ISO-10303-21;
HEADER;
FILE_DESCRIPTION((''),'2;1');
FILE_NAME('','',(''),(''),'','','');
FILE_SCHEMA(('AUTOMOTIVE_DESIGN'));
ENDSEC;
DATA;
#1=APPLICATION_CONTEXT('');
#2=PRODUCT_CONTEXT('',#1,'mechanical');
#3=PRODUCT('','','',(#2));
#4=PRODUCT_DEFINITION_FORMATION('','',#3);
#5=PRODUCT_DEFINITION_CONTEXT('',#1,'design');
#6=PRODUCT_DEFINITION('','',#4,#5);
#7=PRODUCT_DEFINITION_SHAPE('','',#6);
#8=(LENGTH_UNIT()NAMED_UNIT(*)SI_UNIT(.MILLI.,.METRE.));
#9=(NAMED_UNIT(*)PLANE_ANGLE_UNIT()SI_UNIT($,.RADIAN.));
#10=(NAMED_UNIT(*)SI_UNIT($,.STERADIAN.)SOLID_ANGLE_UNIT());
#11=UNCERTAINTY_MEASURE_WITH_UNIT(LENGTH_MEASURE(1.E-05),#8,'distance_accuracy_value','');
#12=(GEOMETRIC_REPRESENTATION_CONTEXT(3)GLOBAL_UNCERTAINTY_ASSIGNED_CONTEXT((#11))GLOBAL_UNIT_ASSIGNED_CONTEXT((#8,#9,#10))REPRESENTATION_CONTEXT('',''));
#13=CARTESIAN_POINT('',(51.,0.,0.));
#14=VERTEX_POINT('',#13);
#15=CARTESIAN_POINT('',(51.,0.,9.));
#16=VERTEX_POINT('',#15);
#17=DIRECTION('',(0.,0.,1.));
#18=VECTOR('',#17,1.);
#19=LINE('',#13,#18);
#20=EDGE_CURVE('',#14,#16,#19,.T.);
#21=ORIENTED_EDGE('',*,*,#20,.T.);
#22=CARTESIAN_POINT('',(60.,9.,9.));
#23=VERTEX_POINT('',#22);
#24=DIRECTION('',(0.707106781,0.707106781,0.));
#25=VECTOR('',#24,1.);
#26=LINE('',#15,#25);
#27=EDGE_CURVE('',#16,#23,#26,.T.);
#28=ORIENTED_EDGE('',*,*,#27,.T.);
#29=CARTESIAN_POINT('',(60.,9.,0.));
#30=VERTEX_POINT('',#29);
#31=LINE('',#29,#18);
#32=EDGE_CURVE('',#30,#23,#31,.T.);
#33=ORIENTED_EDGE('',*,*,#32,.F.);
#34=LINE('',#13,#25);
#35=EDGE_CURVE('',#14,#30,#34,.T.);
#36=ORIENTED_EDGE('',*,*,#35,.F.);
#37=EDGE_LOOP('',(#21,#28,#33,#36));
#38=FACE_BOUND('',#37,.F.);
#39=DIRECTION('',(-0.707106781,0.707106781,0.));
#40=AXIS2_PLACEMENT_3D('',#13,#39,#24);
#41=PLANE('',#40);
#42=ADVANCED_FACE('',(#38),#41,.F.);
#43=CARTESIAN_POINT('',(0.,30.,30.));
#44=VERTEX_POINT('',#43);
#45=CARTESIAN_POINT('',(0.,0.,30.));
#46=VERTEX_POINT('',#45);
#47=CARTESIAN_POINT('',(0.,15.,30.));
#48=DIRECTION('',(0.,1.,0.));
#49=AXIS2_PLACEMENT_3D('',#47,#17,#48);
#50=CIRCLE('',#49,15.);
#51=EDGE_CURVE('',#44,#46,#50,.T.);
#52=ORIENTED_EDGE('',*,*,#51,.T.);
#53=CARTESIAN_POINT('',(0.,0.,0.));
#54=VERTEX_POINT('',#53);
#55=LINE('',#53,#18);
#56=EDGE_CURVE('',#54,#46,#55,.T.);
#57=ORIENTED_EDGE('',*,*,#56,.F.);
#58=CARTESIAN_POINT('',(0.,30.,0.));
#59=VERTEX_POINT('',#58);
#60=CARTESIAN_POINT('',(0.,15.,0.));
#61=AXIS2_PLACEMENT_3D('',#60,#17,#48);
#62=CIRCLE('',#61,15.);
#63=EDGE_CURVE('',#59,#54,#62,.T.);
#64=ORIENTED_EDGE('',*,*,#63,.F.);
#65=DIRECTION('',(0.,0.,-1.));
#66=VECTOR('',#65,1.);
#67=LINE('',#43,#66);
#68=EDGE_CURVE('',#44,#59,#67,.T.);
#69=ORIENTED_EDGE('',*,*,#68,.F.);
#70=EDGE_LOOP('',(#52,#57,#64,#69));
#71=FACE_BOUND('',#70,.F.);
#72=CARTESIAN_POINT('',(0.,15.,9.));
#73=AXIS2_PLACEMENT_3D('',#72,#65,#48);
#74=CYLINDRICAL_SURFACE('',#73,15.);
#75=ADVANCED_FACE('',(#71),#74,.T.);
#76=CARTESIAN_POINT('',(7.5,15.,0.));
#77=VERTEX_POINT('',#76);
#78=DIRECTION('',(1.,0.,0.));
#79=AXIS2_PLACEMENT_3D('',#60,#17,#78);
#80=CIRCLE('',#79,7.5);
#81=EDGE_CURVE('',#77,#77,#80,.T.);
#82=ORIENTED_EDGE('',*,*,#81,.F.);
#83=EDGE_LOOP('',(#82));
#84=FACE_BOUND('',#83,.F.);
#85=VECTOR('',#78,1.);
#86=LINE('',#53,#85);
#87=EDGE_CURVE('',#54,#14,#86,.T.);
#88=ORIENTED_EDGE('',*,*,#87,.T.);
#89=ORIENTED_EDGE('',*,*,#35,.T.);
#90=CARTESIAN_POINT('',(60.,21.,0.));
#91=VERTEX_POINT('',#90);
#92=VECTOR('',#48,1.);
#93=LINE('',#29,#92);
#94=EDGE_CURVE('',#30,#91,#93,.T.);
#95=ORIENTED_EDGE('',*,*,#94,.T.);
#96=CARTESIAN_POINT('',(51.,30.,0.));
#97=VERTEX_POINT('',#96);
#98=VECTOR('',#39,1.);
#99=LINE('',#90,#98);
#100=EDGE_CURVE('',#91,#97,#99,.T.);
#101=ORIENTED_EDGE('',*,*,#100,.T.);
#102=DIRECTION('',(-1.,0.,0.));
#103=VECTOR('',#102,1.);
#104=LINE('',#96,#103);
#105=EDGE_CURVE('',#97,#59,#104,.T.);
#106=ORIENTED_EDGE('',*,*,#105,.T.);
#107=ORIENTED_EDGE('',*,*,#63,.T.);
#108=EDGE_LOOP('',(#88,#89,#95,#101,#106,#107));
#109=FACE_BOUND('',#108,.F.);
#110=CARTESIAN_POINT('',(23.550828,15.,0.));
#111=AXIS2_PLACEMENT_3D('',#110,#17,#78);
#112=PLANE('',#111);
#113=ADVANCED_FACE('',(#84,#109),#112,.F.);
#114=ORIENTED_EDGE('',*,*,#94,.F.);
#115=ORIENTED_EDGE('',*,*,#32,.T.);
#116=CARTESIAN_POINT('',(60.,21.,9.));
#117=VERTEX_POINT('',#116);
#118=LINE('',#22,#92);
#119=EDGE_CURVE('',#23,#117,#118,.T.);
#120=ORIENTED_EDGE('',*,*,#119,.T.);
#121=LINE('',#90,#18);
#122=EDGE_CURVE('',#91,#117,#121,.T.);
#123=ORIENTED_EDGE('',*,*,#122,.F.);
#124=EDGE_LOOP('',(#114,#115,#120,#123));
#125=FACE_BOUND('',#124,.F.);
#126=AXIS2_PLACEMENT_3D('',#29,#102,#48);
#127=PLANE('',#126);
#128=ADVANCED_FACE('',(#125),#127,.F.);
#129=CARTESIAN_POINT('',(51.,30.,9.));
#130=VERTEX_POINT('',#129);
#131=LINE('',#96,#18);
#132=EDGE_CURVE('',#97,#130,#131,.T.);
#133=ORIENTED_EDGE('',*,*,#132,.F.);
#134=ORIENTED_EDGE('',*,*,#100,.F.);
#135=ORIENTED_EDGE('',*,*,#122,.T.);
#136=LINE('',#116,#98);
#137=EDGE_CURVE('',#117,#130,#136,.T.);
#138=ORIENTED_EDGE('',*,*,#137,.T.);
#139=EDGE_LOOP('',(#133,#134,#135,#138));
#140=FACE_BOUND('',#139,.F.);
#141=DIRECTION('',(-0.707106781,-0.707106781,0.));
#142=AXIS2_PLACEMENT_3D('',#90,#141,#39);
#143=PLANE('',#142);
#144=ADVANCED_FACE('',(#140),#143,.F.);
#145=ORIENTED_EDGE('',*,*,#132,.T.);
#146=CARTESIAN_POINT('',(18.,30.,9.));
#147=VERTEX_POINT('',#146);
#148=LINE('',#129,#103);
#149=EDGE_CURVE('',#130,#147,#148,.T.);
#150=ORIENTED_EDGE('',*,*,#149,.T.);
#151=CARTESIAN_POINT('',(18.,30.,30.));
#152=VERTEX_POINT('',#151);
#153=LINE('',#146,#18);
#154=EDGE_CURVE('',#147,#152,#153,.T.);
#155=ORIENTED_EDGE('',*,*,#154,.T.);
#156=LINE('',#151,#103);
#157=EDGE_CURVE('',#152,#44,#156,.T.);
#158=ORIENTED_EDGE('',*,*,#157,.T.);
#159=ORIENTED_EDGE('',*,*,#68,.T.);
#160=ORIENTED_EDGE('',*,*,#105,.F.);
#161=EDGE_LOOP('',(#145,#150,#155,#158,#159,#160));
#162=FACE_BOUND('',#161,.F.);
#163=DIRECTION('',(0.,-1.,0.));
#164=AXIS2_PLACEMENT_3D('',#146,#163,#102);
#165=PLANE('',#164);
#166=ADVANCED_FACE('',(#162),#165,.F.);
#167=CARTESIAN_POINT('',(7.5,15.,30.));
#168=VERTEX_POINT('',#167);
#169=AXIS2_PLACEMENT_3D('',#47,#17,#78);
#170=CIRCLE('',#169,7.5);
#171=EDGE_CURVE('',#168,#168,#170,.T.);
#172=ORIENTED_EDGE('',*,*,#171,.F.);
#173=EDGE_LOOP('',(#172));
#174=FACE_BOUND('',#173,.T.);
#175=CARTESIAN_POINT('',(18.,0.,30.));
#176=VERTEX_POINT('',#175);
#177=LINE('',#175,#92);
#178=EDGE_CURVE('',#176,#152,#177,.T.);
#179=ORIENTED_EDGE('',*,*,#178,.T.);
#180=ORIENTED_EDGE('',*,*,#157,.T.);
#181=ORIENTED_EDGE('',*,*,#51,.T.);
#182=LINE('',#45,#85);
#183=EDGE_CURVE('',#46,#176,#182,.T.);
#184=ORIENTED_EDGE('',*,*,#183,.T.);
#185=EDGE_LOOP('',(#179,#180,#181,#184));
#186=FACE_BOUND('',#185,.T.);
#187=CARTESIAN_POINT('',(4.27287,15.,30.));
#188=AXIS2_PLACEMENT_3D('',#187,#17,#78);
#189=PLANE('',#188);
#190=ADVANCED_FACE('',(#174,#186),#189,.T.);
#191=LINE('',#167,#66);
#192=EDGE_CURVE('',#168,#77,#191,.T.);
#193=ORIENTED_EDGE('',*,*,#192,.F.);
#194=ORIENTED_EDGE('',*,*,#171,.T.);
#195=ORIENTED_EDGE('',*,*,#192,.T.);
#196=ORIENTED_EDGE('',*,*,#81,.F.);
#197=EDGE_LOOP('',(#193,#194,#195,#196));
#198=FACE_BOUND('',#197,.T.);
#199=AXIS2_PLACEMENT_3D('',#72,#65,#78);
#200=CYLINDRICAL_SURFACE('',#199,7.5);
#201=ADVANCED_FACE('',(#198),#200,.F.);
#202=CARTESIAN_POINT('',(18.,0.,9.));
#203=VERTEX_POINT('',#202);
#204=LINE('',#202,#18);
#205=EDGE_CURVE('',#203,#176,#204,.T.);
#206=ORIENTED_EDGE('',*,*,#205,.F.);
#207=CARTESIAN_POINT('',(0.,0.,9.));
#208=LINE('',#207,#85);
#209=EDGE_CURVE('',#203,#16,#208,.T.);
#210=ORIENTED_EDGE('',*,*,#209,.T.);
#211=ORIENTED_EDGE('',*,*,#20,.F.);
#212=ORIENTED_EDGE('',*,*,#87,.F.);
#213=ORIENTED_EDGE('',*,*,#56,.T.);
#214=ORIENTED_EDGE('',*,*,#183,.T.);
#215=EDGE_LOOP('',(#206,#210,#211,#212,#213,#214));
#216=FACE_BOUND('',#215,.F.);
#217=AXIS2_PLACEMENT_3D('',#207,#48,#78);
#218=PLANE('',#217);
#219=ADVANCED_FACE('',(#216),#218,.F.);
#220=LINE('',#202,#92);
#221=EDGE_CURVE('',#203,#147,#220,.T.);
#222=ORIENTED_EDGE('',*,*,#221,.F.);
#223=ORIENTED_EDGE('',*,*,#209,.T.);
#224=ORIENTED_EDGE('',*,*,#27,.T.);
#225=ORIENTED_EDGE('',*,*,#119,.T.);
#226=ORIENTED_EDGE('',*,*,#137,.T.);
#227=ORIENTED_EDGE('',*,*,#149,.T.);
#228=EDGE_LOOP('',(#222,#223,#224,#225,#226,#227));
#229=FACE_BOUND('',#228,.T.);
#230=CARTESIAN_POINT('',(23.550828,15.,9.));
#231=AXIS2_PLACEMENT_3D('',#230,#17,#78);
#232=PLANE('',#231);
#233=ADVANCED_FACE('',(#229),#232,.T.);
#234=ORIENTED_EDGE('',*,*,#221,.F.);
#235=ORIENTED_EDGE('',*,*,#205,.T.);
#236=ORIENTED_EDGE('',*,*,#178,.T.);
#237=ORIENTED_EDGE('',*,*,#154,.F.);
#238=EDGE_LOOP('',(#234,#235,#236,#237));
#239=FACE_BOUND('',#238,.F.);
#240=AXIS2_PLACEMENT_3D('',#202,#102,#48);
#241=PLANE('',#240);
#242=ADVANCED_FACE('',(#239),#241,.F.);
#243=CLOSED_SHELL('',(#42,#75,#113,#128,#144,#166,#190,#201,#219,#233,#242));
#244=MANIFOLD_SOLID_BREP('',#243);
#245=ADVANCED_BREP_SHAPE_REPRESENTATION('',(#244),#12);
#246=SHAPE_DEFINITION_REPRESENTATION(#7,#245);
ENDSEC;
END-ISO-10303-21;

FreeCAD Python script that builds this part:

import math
import FreeCAD as App
import Part
import Sketcher

doc = App.newDocument("Part")
body = doc.addObject("PartDesign::Body", "Body")

# Sketch on XY plane
sketch1 = body.newObject("Sketcher::SketchObject", "Sketch")
sketch1.AttachmentSupport = (doc.getObject("XY_Plane"), [""])
sketch1.MapMode = "FlatFace"
sketch1.addGeometry([
    Part.ArcOfCircle(Part.Circle(App.Vector(0, 15, 0), App.Vector(0, 0, 1), 15), math.radians(90), math.radians(270)),  # 0
    Part.LineSegment(App.Vector(0, 0, 0), App.Vector(51, 0, 0)),  # 1
    Part.LineSegment(App.Vector(51, 0, 0), App.Vector(60, 9, 0)),  # 2
    Part.LineSegment(App.Vector(60, 9, 0), App.Vector(60, 21, 0)),  # 3
    Part.LineSegment(App.Vector(60, 21, 0), App.Vector(51, 30, 0)),  # 4
    Part.LineSegment(App.Vector(51, 30, 0), App.Vector(0, 30, 0)),  # 5
    Part.Circle(App.Vector(0, 15, 0), App.Vector(0, 0, 1), 8),  # 6
], False)
sketch1.addConstraint([
    Sketcher.Constraint("Tangent", 0, 2, 1, 1),
    Sketcher.Constraint("Coincident", 1, 2, 2, 1),
    Sketcher.Constraint("Coincident", 2, 2, 3, 1),
    Sketcher.Constraint("Coincident", 3, 2, 4, 1),
    Sketcher.Constraint("Coincident", 4, 2, 5, 1),
    Sketcher.Constraint("Tangent", 5, 2, 0, 1),
    Sketcher.Constraint("Horizontal", 1),
    Sketcher.Constraint("Vertical", 3),
    Sketcher.Constraint("Horizontal", 5),
    Sketcher.Constraint("Coincident", 0, 2, -1, 1),
    Sketcher.Constraint("Coincident", 6, 3, 0, 3),
    Sketcher.Constraint("Perpendicular", 2, 4),
    Sketcher.Constraint("Vertical", 1, 2, 4, 2),
    Sketcher.Constraint("Equal", 2, 4),
    Sketcher.Constraint("Diameter", 6, 15.0),
    Sketcher.Constraint("Radius", 0, 15.0),
    Sketcher.Constraint("DistanceX", 1, 1, 1, 2, 51.0),
    Sketcher.Constraint("DistanceY", 3, 1, 3, 2, 12.0),
])
pad1 = body.newObject("PartDesign::Pad", "Pad")
pad1.Profile = sketch1
pad1.Length = 9

# Sketch on XY plane
sketch2 = body.newObject("Sketcher::SketchObject", "Sketch001")
sketch2.AttachmentSupport = (doc.getObject("XY_Plane"), [""])
sketch2.MapMode = "FlatFace"
sketch2.AttachmentOffset = App.Placement(App.Vector(0, 0, 9), App.Rotation())
sketch2.addGeometry([
    Part.ArcOfCircle(Part.Circle(App.Vector(0, 15, 0), App.Vector(0, 0, 1), 15), math.radians(90), math.radians(270)),  # 0
    Part.LineSegment(App.Vector(0, 0, 0), App.Vector(18, 0, 0)),  # 1
    Part.LineSegment(App.Vector(18, 0, 0), App.Vector(18, 30, 0)),  # 2
    Part.LineSegment(App.Vector(18, 30, 0), App.Vector(0, 30, 0)),  # 3
    Part.Circle(App.Vector(0, 15, 0), App.Vector(0, 0, 1), 8),  # 4
], False)
sketch2.addConstraint([
    Sketcher.Constraint("Tangent", 0, 2, 1, 1),
    Sketcher.Constraint("Coincident", 1, 2, 2, 1),
    Sketcher.Constraint("Coincident", 2, 2, 3, 1),
    Sketcher.Constraint("Tangent", 3, 2, 0, 1),
    Sketcher.Constraint("Horizontal", 1),
    Sketcher.Constraint("Vertical", 2),
    Sketcher.Constraint("Horizontal", 3),
    Sketcher.Constraint("Coincident", 0, 2, -1, 1),
    Sketcher.Constraint("Coincident", 4, 3, 0, 3),
    Sketcher.Constraint("Diameter", 4, 15.0),
    Sketcher.Constraint("Radius", 0, 15.0),
    Sketcher.Constraint("DistanceX", 1, 1, 1, 2, 18.0),
])
pad2 = body.newObject("PartDesign::Pad", "Pad001")
pad2.Profile = sketch2
pad2.Length = 21

doc.recompute()
